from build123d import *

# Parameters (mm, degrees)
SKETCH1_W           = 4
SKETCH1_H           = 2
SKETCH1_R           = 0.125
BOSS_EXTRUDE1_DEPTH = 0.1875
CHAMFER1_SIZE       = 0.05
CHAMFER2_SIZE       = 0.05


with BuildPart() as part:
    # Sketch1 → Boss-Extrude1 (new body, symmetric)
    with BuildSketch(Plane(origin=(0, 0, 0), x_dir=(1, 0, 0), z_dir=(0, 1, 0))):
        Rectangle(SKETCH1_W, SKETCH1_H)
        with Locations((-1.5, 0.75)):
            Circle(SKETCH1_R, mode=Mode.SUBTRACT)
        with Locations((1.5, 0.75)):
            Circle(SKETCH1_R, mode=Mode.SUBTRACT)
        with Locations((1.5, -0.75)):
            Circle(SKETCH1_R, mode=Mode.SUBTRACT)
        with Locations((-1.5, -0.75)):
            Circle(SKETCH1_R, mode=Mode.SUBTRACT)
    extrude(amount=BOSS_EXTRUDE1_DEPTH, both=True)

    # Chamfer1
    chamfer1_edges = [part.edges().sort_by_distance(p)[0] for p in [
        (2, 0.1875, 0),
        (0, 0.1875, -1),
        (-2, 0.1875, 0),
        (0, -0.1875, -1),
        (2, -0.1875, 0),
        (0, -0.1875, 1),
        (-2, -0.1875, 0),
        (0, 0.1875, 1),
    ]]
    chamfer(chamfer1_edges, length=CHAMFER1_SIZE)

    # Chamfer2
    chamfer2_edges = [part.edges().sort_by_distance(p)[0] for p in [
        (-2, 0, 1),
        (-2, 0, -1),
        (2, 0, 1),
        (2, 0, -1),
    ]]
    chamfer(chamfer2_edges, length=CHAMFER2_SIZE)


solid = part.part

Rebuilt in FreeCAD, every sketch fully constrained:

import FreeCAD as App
import Part
import Sketcher
Q = App.Units.Quantity


def edges_at(feature, points):
    """Names of the edges that pass closest to the given points."""
    edges = feature.Shape.Edges
    near = lambda p: min(range(len(edges)), key=lambda i: edges[i].distToShape(Part.Vertex(*p))[0])
    return sorted({f"Edge{near(p) + 1}" for p in points})


def add_polygon(sketch, points):
    """Adds a closed chain of lines whose ends are joined by coincident constraints."""
    first, n = sketch.GeometryCount, len(points)
    for a, b in zip(points, points[1:] + points[:1]):
        sketch.addGeometry(Part.LineSegment(App.Vector(*a, 0), App.Vector(*b, 0)), False)
    for i in range(n):
        sketch.addConstraint(Sketcher.Constraint("Coincident", first + i, 2, first + (i + 1) % n, 1))

doc = App.newDocument("Part")
body = doc.addObject("PartDesign::Body", "Body")

sketch1 = body.newObject("Sketcher::SketchObject", "Sketch")
sketch1.AttachmentSupport = (doc.getObject("XZ_Plane"), [""])
sketch1.MapMode = "FlatFace"
add_polygon(sketch1, [(-2, -1), (-2, 1), (2, 1), (2, -1)])
sketch1.addGeometry(Part.Circle(App.Vector(-1.5, 0.75, 0), App.Vector(0, 0, 1), 0.125), False)
sketch1.addGeometry(Part.Circle(App.Vector(1.5, 0.75, 0), App.Vector(0, 0, 1), 0.125), False)
sketch1.addGeometry(Part.Circle(App.Vector(-1.5, -0.75, 0), App.Vector(0, 0, 1), 0.125), False)
sketch1.addGeometry(Part.Circle(App.Vector(1.5, -0.75, 0), App.Vector(0, 0, 1), 0.125), False)
sketch1.addConstraint(Sketcher.Constraint("Vertical", 0))
sketch1.addConstraint(Sketcher.Constraint("Horizontal", 1))
sketch1.addConstraint(Sketcher.Constraint("Vertical", 2))
sketch1.addConstraint(Sketcher.Constraint("Horizontal", 3))
sketch1.addConstraint(Sketcher.Constraint("Equal", 4, 5))
sketch1.addConstraint(Sketcher.Constraint("Equal", 5, 6))
sketch1.addConstraint(Sketcher.Constraint("Equal", 6, 7))
sketch1.addConstraint(Sketcher.Constraint("Symmetric", 5, 3, 6, 3, -1, 1))
sketch1.addConstraint(Sketcher.Constraint("Symmetric", 4, 3, 7, 3, -1, 1))
sketch1.addConstraint(Sketcher.Constraint("Symmetric", 0, 2, 2, 2, -1, 1))
sketch1.addConstraint(Sketcher.Constraint("Symmetric", 4, 3, 5, 3, -2))
sketch1.addConstraint(Sketcher.Constraint("Diameter", 4, Q("0.25 mm")))
sketch1.addConstraint(Sketcher.Constraint("DistanceX", 1, 1, 1, 2, Q("4 mm")))
sketch1.addConstraint(Sketcher.Constraint("DistanceY", 0, 1, 0, 2, Q("2 mm")))
sketch1.addConstraint(Sketcher.Constraint("DistanceX", 4, 3, 5, 3, Q("3 mm")))
sketch1.addConstraint(Sketcher.Constraint("DistanceY", 6, 3, 4, 3, Q("1.5 mm")))
pad1 = body.newObject("PartDesign::Pad", "Pad")
pad1.Profile = sketch1
pad1.Length = 0.375
pad1.Midplane = True
doc.recompute()

chamfer = body.newObject("PartDesign::Chamfer", "Chamfer")
chamfer.Base = (pad1, edges_at(pad1, [
    (2, 0.188, 0),
    (0, 0.188, -1),
    (-2, 0.188, 0),
    (0, -0.188, -1),
    (2, -0.188, 0),
    (0, -0.188, 1),
    (-2, -0.188, 0),
    (0, 0.188, 1),
]))
chamfer.Size = 0.05
doc.recompute()

chamfer2 = body.newObject("PartDesign::Chamfer", "Chamfer001")
chamfer2.Base = (chamfer, edges_at(chamfer, [
    (-2, 0, 1),
    (-2, 0, -1),
    (2, 0, 1),
    (2, 0, -1),
]))
chamfer2.Size = 0.05

doc.recompute()
